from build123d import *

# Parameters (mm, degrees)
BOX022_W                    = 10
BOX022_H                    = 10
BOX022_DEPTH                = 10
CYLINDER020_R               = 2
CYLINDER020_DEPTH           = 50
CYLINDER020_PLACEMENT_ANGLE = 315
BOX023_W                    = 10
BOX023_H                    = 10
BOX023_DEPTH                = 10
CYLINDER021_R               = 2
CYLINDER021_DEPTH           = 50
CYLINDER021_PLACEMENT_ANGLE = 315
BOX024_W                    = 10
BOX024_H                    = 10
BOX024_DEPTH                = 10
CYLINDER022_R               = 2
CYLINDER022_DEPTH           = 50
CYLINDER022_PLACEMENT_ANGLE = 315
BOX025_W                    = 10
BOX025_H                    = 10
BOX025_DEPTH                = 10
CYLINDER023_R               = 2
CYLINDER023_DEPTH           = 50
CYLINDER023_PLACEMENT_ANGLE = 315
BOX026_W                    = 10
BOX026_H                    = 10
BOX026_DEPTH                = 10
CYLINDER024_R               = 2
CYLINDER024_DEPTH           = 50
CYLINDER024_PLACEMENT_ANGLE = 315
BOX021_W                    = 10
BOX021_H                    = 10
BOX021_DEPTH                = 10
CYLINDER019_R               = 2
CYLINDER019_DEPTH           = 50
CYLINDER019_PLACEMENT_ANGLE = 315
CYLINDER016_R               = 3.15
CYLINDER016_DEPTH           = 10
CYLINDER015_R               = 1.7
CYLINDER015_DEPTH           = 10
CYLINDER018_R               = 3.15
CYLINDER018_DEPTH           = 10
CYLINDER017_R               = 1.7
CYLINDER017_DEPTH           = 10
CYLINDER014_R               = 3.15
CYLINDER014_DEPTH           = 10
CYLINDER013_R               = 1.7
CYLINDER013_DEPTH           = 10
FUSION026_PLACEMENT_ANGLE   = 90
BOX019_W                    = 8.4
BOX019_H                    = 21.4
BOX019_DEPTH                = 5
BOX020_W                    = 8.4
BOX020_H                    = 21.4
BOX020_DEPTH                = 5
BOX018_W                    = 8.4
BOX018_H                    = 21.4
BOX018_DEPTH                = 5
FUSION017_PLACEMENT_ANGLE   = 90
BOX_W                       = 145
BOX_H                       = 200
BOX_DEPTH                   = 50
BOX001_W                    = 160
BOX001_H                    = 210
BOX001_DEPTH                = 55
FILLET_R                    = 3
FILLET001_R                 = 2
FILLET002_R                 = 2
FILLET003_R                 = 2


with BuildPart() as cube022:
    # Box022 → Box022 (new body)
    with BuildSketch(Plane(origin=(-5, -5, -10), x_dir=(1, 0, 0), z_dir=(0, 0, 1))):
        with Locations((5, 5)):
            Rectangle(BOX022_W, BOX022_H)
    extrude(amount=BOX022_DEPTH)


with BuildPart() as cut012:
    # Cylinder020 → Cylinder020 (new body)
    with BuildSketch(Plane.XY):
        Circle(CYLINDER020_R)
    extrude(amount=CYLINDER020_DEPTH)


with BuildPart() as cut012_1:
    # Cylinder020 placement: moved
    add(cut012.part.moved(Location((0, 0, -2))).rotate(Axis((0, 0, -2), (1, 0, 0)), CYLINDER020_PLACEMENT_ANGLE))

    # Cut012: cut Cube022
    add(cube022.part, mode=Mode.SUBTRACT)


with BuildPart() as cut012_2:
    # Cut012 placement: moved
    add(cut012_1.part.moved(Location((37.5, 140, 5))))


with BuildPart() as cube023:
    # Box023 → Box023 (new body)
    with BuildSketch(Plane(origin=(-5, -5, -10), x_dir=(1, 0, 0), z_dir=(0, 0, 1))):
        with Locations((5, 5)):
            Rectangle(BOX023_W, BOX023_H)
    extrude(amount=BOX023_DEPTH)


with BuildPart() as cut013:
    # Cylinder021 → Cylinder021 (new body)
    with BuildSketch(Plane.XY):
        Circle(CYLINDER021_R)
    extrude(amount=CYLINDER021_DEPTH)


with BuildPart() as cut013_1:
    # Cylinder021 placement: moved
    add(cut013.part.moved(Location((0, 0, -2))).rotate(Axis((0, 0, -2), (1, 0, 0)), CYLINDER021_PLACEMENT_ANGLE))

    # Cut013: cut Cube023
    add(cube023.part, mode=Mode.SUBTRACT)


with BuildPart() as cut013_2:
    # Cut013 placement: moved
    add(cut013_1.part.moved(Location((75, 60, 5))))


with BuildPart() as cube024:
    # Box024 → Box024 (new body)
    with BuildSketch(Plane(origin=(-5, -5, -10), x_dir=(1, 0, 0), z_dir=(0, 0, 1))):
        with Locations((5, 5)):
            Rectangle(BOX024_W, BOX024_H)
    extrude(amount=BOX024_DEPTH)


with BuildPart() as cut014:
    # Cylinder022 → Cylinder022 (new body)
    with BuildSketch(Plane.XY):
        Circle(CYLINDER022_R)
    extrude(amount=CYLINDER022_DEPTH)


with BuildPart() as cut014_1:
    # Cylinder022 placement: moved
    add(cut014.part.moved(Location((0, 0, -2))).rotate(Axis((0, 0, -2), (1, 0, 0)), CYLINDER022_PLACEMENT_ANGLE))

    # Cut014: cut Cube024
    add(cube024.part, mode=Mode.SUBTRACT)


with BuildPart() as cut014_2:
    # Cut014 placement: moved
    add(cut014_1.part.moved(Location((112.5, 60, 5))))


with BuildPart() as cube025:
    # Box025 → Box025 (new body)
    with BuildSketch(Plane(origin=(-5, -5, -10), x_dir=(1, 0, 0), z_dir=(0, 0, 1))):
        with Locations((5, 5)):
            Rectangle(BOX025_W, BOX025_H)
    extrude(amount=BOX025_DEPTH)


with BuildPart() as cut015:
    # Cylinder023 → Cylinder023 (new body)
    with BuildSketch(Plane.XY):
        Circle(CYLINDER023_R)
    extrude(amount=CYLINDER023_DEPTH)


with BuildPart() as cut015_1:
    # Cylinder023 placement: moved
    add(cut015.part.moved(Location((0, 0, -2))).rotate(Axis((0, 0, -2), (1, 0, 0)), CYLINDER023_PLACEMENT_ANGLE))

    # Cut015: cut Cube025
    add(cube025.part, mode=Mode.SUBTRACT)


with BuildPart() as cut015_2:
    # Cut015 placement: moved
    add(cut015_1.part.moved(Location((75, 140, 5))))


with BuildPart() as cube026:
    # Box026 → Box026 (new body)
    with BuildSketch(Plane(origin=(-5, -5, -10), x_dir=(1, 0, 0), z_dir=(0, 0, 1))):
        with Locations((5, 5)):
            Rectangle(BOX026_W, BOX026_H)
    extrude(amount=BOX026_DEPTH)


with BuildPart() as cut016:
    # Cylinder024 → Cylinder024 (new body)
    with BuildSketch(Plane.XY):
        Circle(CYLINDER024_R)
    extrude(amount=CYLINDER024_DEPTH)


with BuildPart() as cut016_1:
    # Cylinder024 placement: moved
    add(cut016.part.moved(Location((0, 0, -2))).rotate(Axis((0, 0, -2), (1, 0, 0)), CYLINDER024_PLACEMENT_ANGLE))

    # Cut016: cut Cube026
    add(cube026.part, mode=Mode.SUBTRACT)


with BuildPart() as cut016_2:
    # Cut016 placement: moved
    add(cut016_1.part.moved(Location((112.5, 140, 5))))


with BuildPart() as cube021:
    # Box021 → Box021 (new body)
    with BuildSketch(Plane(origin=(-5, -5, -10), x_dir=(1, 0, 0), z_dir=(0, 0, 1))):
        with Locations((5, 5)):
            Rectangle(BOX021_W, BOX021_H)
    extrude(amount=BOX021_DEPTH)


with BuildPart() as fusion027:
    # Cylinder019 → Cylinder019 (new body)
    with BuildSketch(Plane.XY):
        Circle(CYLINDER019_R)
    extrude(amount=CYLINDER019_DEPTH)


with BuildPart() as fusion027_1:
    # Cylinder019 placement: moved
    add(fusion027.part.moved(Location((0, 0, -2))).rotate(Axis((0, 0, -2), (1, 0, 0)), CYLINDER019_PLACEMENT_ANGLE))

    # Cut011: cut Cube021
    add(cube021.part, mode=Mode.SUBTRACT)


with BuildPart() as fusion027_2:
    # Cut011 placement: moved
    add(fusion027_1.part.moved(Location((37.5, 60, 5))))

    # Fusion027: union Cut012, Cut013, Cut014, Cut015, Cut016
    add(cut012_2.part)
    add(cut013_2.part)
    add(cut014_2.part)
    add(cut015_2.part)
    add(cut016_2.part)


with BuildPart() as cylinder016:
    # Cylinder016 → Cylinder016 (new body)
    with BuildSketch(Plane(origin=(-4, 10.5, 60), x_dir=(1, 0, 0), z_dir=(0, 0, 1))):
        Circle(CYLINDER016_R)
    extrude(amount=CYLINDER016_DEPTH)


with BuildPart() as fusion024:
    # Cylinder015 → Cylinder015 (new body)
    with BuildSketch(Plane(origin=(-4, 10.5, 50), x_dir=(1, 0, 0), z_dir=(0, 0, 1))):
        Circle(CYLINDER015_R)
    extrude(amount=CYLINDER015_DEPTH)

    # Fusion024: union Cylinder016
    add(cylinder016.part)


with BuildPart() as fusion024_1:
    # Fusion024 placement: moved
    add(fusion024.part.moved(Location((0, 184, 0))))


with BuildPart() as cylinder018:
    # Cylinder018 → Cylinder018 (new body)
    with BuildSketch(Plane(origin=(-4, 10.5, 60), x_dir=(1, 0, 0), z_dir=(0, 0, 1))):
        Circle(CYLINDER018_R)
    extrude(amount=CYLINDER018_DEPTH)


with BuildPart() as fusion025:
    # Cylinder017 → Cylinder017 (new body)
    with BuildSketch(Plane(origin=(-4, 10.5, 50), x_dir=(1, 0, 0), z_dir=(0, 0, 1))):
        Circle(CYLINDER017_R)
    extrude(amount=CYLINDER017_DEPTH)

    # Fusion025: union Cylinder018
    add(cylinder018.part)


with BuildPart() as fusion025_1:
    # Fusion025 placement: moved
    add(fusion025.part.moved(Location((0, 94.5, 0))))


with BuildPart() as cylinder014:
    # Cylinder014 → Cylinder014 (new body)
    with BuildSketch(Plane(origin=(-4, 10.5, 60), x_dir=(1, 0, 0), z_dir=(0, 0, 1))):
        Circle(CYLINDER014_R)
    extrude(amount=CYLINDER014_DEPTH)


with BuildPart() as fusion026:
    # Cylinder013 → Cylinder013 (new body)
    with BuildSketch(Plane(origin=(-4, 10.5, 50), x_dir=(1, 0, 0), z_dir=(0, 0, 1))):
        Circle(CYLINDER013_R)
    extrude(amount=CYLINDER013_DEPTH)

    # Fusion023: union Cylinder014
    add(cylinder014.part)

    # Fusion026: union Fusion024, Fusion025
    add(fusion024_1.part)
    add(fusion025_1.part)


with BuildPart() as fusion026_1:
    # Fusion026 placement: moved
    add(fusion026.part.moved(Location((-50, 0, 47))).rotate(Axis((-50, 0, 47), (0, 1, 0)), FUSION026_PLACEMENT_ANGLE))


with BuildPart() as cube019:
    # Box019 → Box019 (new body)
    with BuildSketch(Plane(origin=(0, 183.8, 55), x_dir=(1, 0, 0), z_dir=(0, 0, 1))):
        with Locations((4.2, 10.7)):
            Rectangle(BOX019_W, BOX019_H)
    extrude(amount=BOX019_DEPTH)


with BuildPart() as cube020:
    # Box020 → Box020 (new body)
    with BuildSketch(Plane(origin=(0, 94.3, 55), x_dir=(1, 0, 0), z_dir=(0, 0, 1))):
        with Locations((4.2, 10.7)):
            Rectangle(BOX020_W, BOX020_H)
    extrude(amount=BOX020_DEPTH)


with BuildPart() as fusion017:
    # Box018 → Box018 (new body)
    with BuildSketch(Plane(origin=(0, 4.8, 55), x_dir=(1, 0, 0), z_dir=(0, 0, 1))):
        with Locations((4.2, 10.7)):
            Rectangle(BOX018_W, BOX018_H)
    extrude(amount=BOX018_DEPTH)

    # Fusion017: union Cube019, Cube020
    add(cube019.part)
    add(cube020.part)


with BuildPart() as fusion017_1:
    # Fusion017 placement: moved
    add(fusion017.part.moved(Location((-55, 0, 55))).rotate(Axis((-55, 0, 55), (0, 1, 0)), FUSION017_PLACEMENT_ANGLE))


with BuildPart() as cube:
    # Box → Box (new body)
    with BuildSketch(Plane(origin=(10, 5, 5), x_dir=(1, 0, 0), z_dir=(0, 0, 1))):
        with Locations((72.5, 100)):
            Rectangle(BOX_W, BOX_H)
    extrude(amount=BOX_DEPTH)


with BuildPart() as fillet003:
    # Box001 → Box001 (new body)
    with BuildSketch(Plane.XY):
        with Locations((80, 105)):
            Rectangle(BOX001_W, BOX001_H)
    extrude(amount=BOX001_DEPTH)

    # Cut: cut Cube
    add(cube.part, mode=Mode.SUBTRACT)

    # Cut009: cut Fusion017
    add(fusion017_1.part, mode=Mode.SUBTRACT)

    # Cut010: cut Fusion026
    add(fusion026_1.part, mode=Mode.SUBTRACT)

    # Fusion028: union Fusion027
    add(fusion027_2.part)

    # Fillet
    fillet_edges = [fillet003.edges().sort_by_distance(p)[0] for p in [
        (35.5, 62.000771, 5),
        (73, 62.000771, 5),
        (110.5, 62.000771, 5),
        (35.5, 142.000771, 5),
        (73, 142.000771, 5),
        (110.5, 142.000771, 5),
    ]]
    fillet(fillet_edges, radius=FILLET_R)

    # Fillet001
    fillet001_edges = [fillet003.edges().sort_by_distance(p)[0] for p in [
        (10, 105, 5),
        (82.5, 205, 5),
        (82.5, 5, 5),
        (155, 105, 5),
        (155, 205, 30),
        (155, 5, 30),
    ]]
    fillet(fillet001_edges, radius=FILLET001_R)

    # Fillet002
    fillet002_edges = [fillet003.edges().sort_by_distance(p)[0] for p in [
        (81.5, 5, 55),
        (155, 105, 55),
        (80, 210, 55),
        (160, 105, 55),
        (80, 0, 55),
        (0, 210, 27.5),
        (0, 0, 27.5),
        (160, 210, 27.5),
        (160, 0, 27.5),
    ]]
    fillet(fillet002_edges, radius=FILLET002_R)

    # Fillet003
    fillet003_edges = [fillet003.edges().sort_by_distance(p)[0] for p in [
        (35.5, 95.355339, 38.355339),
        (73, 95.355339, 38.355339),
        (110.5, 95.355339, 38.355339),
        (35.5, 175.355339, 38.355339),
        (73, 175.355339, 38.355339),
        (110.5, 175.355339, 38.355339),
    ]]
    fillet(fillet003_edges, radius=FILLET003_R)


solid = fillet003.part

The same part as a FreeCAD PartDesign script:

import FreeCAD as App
import Part
import Sketcher
Q = App.Units.Quantity


def edges_at(feature, points):
    """Names of the edges that pass closest to the given points."""
    edges = feature.Shape.Edges
    near = lambda p: min(range(len(edges)), key=lambda i: edges[i].distToShape(Part.Vertex(*p))[0])
    return sorted({f"Edge{near(p) + 1}" for p in points})


def add_polygon(sketch, points):
    """Adds a closed chain of lines whose ends are joined by coincident constraints."""
    first, n = sketch.GeometryCount, len(points)
    for a, b in zip(points, points[1:] + points[:1]):
        sketch.addGeometry(Part.LineSegment(App.Vector(*a, 0), App.Vector(*b, 0)), False)
    for i in range(n):
        sketch.addConstraint(Sketcher.Constraint("Coincident", first + i, 2, first + (i + 1) % n, 1))

doc = App.newDocument("Part")
body = doc.addObject("PartDesign::Body", "Body")

# Sketch on XY plane
sketch1 = doc.addObject("Sketcher::SketchObject", "Sketch")
body.addObject(sketch1)
sketch1.AttachmentSupport = (doc.XY_Plane, [""])
sketch1.MapMode = "FlatFace"
sketch1.AttachmentOffset = App.Placement(App.Vector(0, 0, -10), App.Rotation())
add_polygon(sketch1, [(-5, 5), (-5, -5), (5, -5), (5, 5)])  # lines 0-3
sketch1.addConstraint([
    Sketcher.Constraint("Vertical", 0),
    Sketcher.Constraint("Horizontal", 1),
    Sketcher.Constraint("Vertical", 2),
    Sketcher.Constraint("Horizontal", 3),
    Sketcher.Constraint("Symmetric", 0, 2, 2, 2, -1, 1),
    Sketcher.Constraint("Equal", 3, 0),
    Sketcher.Constraint("DistanceX", 1, 1, 1, 2, Q("10 mm")),
])
pad1 = doc.addObject("PartDesign::Pad", "Pad")
body.addObject(pad1)
pad1.Profile = sketch1
pad1.Length = 10
body2 = doc.addObject("PartDesign::Body", "Body001")

# Sketch on XY plane
sketch2 = doc.addObject("Sketcher::SketchObject", "Sketch001")
body2.addObject(sketch2)
sketch2.AttachmentSupport = (doc.getObject("XY_Plane001"), [""])
sketch2.MapMode = "FlatFace"
sketch2.addGeometry(Part.Circle(App.Vector(0, 0, 0), App.Vector(0, 0, 1), 2), False)
sketch2.addConstraint([
    Sketcher.Constraint("Coincident", 0, 3, -1, 1),
    Sketcher.Constraint("Diameter", 0, Q("4 mm")),
])
pad2 = doc.addObject("PartDesign::Pad", "Pad001")
body2.addObject(pad2)
pad2.Profile = sketch2
pad2.Length = 50
body3 = doc.addObject("PartDesign::Body", "Body002")
doc.recompute()

body2.Placement = App.Placement(App.Vector(0, 0, -2), App.Rotation(App.Vector(1, 0, 0), 315))
boolean = doc.addObject("PartDesign::Boolean", "Boolean")
body3.addObject(boolean)
boolean.Type = "Fuse"
boolean.addObjects([body2])
doc.recompute()

boolean2 = doc.addObject("PartDesign::Boolean", "Boolean001")
body3.addObject(boolean2)
boolean2.Type = "Cut"
boolean2.addObjects([body])
body4 = doc.addObject("PartDesign::Body", "Body003")
doc.recompute()

body3.Placement = App.Placement(App.Vector(37.5, 140, 5), App.Rotation(App.Vector(0, 0, 1), 0))
boolean3 = doc.addObject("PartDesign::Boolean", "Boolean002")
body4.addObject(boolean3)
boolean3.Type = "Fuse"
boolean3.addObjects([body3])
body5 = doc.addObject("PartDesign::Body", "Body004")

# Sketch on XY plane
sketch3 = doc.addObject("Sketcher::SketchObject", "Sketch002")
body5.addObject(sketch3)
sketch3.AttachmentSupport = (doc.getObject("XY_Plane004"), [""])
sketch3.MapMode = "FlatFace"
sketch3.AttachmentOffset = App.Placement(App.Vector(0, 0, -10), App.Rotation())
add_polygon(sketch3, [(-5, 5), (-5, -5), (5, -5), (5, 5)])  # lines 0-3
sketch3.addConstraint([
    Sketcher.Constraint("Vertical", 0),
    Sketcher.Constraint("Horizontal", 1),
    Sketcher.Constraint("Vertical", 2),
    Sketcher.Constraint("Horizontal", 3),
    Sketcher.Constraint("Symmetric", 0, 2, 2, 2, -1, 1),
    Sketcher.Constraint("Equal", 3, 0),
    Sketcher.Constraint("DistanceX", 1, 1, 1, 2, Q("10 mm")),
])
pad3 = doc.addObject("PartDesign::Pad", "Pad002")
body5.addObject(pad3)
pad3.Profile = sketch3
pad3.Length = 10
body6 = doc.addObject("PartDesign::Body", "Body005")

# Sketch on XY plane
sketch4 = doc.addObject("Sketcher::SketchObject", "Sketch003")
body6.addObject(sketch4)
sketch4.AttachmentSupport = (doc.getObject("XY_Plane005"), [""])
sketch4.MapMode = "FlatFace"
sketch4.addGeometry(Part.Circle(App.Vector(0, 0, 0), App.Vector(0, 0, 1), 2), False)
sketch4.addConstraint([
    Sketcher.Constraint("Coincident", 0, 3, -1, 1),
    Sketcher.Constraint("Diameter", 0, Q("4 mm")),
])
pad4 = doc.addObject("PartDesign::Pad", "Pad003")
body6.addObject(pad4)
pad4.Profile = sketch4
pad4.Length = 50
body7 = doc.addObject("PartDesign::Body", "Body006")
doc.recompute()

body6.Placement = App.Placement(App.Vector(0, 0, -2), App.Rotation(App.Vector(1, 0, 0), 315))
boolean4 = doc.addObject("PartDesign::Boolean", "Boolean003")
body7.addObject(boolean4)
boolean4.Type = "Fuse"
boolean4.addObjects([body6])
doc.recompute()

boolean5 = doc.addObject("PartDesign::Boolean", "Boolean004")
body7.addObject(boolean5)
boolean5.Type = "Cut"
boolean5.addObjects([body5])
body8 = doc.addObject("PartDesign::Body", "Body007")
doc.recompute()

body7.Placement = App.Placement(App.Vector(75, 60, 5), App.Rotation(App.Vector(0, 0, 1), 0))
boolean6 = doc.addObject("PartDesign::Boolean", "Boolean005")
body8.addObject(boolean6)
boolean6.Type = "Fuse"
boolean6.addObjects([body7])
body9 = doc.addObject("PartDesign::Body", "Body008")

# Sketch on XY plane
sketch5 = doc.addObject("Sketcher::SketchObject", "Sketch004")
body9.addObject(sketch5)
sketch5.AttachmentSupport = (doc.getObject("XY_Plane008"), [""])
sketch5.MapMode = "FlatFace"
sketch5.AttachmentOffset = App.Placement(App.Vector(0, 0, -10), App.Rotation())
add_polygon(sketch5, [(-5, 5), (-5, -5), (5, -5), (5, 5)])  # lines 0-3
sketch5.addConstraint([
    Sketcher.Constraint("Vertical", 0),
    Sketcher.Constraint("Horizontal", 1),
    Sketcher.Constraint("Vertical", 2),
    Sketcher.Constraint("Horizontal", 3),
    Sketcher.Constraint("Symmetric", 0, 2, 2, 2, -1, 1),
    Sketcher.Constraint("Equal", 3, 0),
    Sketcher.Constraint("DistanceX", 1, 1, 1, 2, Q("10 mm")),
])
pad5 = doc.addObject("PartDesign::Pad", "Pad004")
body9.addObject(pad5)
pad5.Profile = sketch5
pad5.Length = 10
body10 = doc.addObject("PartDesign::Body", "Body009")

# Sketch on XY plane
sketch6 = doc.addObject("Sketcher::SketchObject", "Sketch005")
body10.addObject(sketch6)
sketch6.AttachmentSupport = (doc.getObject("XY_Plane009"), [""])
sketch6.MapMode = "FlatFace"
sketch6.addGeometry(Part.Circle(App.Vector(0, 0, 0), App.Vector(0, 0, 1), 2), False)
sketch6.addConstraint([
    Sketcher.Constraint("Coincident", 0, 3, -1, 1),
    Sketcher.Constraint("Diameter", 0, Q("4 mm")),
])
pad6 = doc.addObject("PartDesign::Pad", "Pad005")
body10.addObject(pad6)
pad6.Profile = sketch6
pad6.Length = 50
body11 = doc.addObject("PartDesign::Body", "Body010")
doc.recompute()

body10.Placement = App.Placement(App.Vector(0, 0, -2), App.Rotation(App.Vector(1, 0, 0), 315))
boolean7 = doc.addObject("PartDesign::Boolean", "Boolean006")
body11.addObject(boolean7)
boolean7.Type = "Fuse"
boolean7.addObjects([body10])
doc.recompute()

boolean8 = doc.addObject("PartDesign::Boolean", "Boolean007")
body11.addObject(boolean8)
boolean8.Type = "Cut"
boolean8.addObjects([body9])
body12 = doc.addObject("PartDesign::Body", "Body011")
doc.recompute()

body11.Placement = App.Placement(App.Vector(112.5, 60, 5), App.Rotation(App.Vector(0, 0, 1), 0))
boolean9 = doc.addObject("PartDesign::Boolean", "Boolean008")
body12.addObject(boolean9)
boolean9.Type = "Fuse"
boolean9.addObjects([body11])
body13 = doc.addObject("PartDesign::Body", "Body012")

# Sketch on XY plane
sketch7 = doc.addObject("Sketcher::SketchObject", "Sketch006")
body13.addObject(sketch7)
sketch7.AttachmentSupport = (doc.getObject("XY_Plane012"), [""])
sketch7.MapMode = "FlatFace"
sketch7.AttachmentOffset = App.Placement(App.Vector(0, 0, -10), App.Rotation())
add_polygon(sketch7, [(-5, 5), (-5, -5), (5, -5), (5, 5)])  # lines 0-3
sketch7.addConstraint([
    Sketcher.Constraint("Vertical", 0),
    Sketcher.Constraint("Horizontal", 1),
    Sketcher.Constraint("Vertical", 2),
    Sketcher.Constraint("Horizontal", 3),
    Sketcher.Constraint("Symmetric", 0, 2, 2, 2, -1, 1),
    Sketcher.Constraint("Equal", 3, 0),
    Sketcher.Constraint("DistanceX", 1, 1, 1, 2, Q("10 mm")),
])
pad7 = doc.addObject("PartDesign::Pad", "Pad006")
body13.addObject(pad7)
pad7.Profile = sketch7
pad7.Length = 10
body14 = doc.addObject("PartDesign::Body", "Body013")

# Sketch on XY plane
sketch8 = doc.addObject("Sketcher::SketchObject", "Sketch007")
body14.addObject(sketch8)
sketch8.AttachmentSupport = (doc.getObject("XY_Plane013"), [""])
sketch8.MapMode = "FlatFace"
sketch8.addGeometry(Part.Circle(App.Vector(0, 0, 0), App.Vector(0, 0, 1), 2), False)
sketch8.addConstraint([
    Sketcher.Constraint("Coincident", 0, 3, -1, 1),
    Sketcher.Constraint("Diameter", 0, Q("4 mm")),
])
pad8 = doc.addObject("PartDesign::Pad", "Pad007")
body14.addObject(pad8)
pad8.Profile = sketch8
pad8.Length = 50
body15 = doc.addObject("PartDesign::Body", "Body014")
doc.recompute()

body14.Placement = App.Placement(App.Vector(0, 0, -2), App.Rotation(App.Vector(1, 0, 0), 315))
boolean10 = doc.addObject("PartDesign::Boolean", "Boolean009")
body15.addObject(boolean10)
boolean10.Type = "Fuse"
boolean10.addObjects([body14])
doc.recompute()

boolean11 = doc.addObject("PartDesign::Boolean", "Boolean010")
body15.addObject(boolean11)
boolean11.Type = "Cut"
boolean11.addObjects([body13])
body16 = doc.addObject("PartDesign::Body", "Body015")
doc.recompute()

body15.Placement = App.Placement(App.Vector(75, 140, 5), App.Rotation(App.Vector(0, 0, 1), 0))
boolean12 = doc.addObject("PartDesign::Boolean", "Boolean011")
body16.addObject(boolean12)
boolean12.Type = "Fuse"
boolean12.addObjects([body15])
body17 = doc.addObject("PartDesign::Body", "Body016")

# Sketch on XY plane
sketch9 = doc.addObject("Sketcher::SketchObject", "Sketch008")
body17.addObject(sketch9)
sketch9.AttachmentSupport = (doc.getObject("XY_Plane016"), [""])
sketch9.MapMode = "FlatFace"
sketch9.AttachmentOffset = App.Placement(App.Vector(0, 0, -10), App.Rotation())
add_polygon(sketch9, [(-5, 5), (-5, -5), (5, -5), (5, 5)])  # lines 0-3
sketch9.addConstraint([
    Sketcher.Constraint("Vertical", 0),
    Sketcher.Constraint("Horizontal", 1),
    Sketcher.Constraint("Vertical", 2),
    Sketcher.Constraint("Horizontal", 3),
    Sketcher.Constraint("Symmetric", 0, 2, 2, 2, -1, 1),
    Sketcher.Constraint("Equal", 3, 0),
    Sketcher.Constraint("DistanceX", 1, 1, 1, 2, Q("10 mm")),
])
pad9 = doc.addObject("PartDesign::Pad", "Pad008")
body17.addObject(pad9)
pad9.Profile = sketch9
pad9.Length = 10
body18 = doc.addObject("PartDesign::Body", "Body017")

# Sketch on XY plane
sketch10 = doc.addObject("Sketcher::SketchObject", "Sketch009")
body18.addObject(sketch10)
sketch10.AttachmentSupport = (doc.getObject("XY_Plane017"), [""])
sketch10.MapMode = "FlatFace"
sketch10.addGeometry(Part.Circle(App.Vector(0, 0, 0), App.Vector(0, 0, 1), 2), False)
sketch10.addConstraint([
    Sketcher.Constraint("Coincident", 0, 3, -1, 1),
    Sketcher.Constraint("Diameter", 0, Q("4 mm")),
])
pad10 = doc.addObject("PartDesign::Pad", "Pad009")
body18.addObject(pad10)
pad10.Profile = sketch10
pad10.Length = 50
body19 = doc.addObject("PartDesign::Body", "Body018")
doc.recompute()

body18.Placement = App.Placement(App.Vector(0, 0, -2), App.Rotation(App.Vector(1, 0, 0), 315))
boolean13 = doc.addObject("PartDesign::Boolean", "Boolean012")
body19.addObject(boolean13)
boolean13.Type = "Fuse"
boolean13.addObjects([body18])
doc.recompute()

boolean14 = doc.addObject("PartDesign::Boolean", "Boolean013")
body19.addObject(boolean14)
boolean14.Type = "Cut"
boolean14.addObjects([body17])
body20 = doc.addObject("PartDesign::Body", "Body019")
doc.recompute()

body19.Placement = App.Placement(App.Vector(112.5, 140, 5), App.Rotation(App.Vector(0, 0, 1), 0))
boolean15 = doc.addObject("PartDesign::Boolean", "Boolean014")
body20.addObject(boolean15)
boolean15.Type = "Fuse"
boolean15.addObjects([body19])
body21 = doc.addObject("PartDesign::Body", "Body020")

# Sketch on XY plane
sketch11 = doc.addObject("Sketcher::SketchObject", "Sketch010")
body21.addObject(sketch11)
sketch11.AttachmentSupport = (doc.getObject("XY_Plane020"), [""])
sketch11.MapMode = "FlatFace"
sketch11.AttachmentOffset = App.Placement(App.Vector(0, 0, -10), App.Rotation())
add_polygon(sketch11, [(-5, 5), (-5, -5), (5, -5), (5, 5)])  # lines 0-3
sketch11.addConstraint([
    Sketcher.Constraint("Vertical", 0),
    Sketcher.Constraint("Horizontal", 1),
    Sketcher.Constraint("Vertical", 2),
    Sketcher.Constraint("Horizontal", 3),
    Sketcher.Constraint("Symmetric", 0, 2, 2, 2, -1, 1),
    Sketcher.Constraint("Equal", 3, 0),
    Sketcher.Constraint("DistanceX", 1, 1, 1, 2, Q("10 mm")),
])
pad11 = doc.addObject("PartDesign::Pad", "Pad010")
body21.addObject(pad11)
pad11.Profile = sketch11
pad11.Length = 10
body22 = doc.addObject("PartDesign::Body", "Body021")

# Sketch on XY plane
sketch12 = doc.addObject("Sketcher::SketchObject", "Sketch011")
body22.addObject(sketch12)
sketch12.AttachmentSupport = (doc.getObject("XY_Plane021"), [""])
sketch12.MapMode = "FlatFace"
sketch12.addGeometry(Part.Circle(App.Vector(0, 0, 0), App.Vector(0, 0, 1), 2), False)
sketch12.addConstraint([
    Sketcher.Constraint("Coincident", 0, 3, -1, 1),
    Sketcher.Constraint("Diameter", 0, Q("4 mm")),
])
pad12 = doc.addObject("PartDesign::Pad", "Pad011")
body22.addObject(pad12)
pad12.Profile = sketch12
pad12.Length = 50
body23 = doc.addObject("PartDesign::Body", "Body022")
doc.recompute()

body22.Placement = App.Placement(App.Vector(0, 0, -2), App.Rotation(App.Vector(1, 0, 0), 315))
boolean16 = doc.addObject("PartDesign::Boolean", "Boolean015")
body23.addObject(boolean16)
boolean16.Type = "Fuse"
boolean16.addObjects([body22])
doc.recompute()

boolean17 = doc.addObject("PartDesign::Boolean", "Boolean016")
body23.addObject(boolean17)
boolean17.Type = "Cut"
boolean17.addObjects([body21])
body24 = doc.addObject("PartDesign::Body", "Body023")
body24.AllowCompound = True
doc.recompute()

body23.Placement = App.Placement(App.Vector(37.5, 60, 5), App.Rotation(App.Vector(0, 0, 1), 0))
boolean18 = doc.addObject("PartDesign::Boolean", "Boolean017")
body24.addObject(boolean18)
boolean18.Type = "Fuse"
boolean18.addObjects([body23])
doc.recompute()

boolean19 = doc.addObject("PartDesign::Boolean", "Boolean018")
body24.addObject(boolean19)
boolean19.Type = "Fuse"
boolean19.addObjects([body4])
doc.recompute()

boolean20 = doc.addObject("PartDesign::Boolean", "Boolean019")
body24.addObject(boolean20)
boolean20.Type = "Fuse"
boolean20.addObjects([body8])
doc.recompute()

boolean21 = doc.addObject("PartDesign::Boolean", "Boolean020")
body24.addObject(boolean21)
boolean21.Type = "Fuse"
boolean21.addObjects([body12])
doc.recompute()

boolean22 = doc.addObject("PartDesign::Boolean", "Boolean021")
body24.addObject(boolean22)
boolean22.Type = "Fuse"
boolean22.addObjects([body16])
doc.recompute()

boolean23 = doc.addObject("PartDesign::Boolean", "Boolean022")
body24.addObject(boolean23)
boolean23.Type = "Fuse"
boolean23.addObjects([body20])
body25 = doc.addObject("PartDesign::Body", "Body024")

# Sketch on XY plane
sketch13 = doc.addObject("Sketcher::SketchObject", "Sketch012")
body25.addObject(sketch13)
sketch13.AttachmentSupport = (doc.getObject("XY_Plane024"), [""])
sketch13.MapMode = "FlatFace"
sketch13.AttachmentOffset = App.Placement(App.Vector(0, 0, 60), App.Rotation())
sketch13.addGeometry(Part.Circle(App.Vector(-4, 10.5, 0), App.Vector(0, 0, 1), 3.1), False)
sketch13.addConstraint([
    Sketcher.Constraint("Diameter", 0, Q("6.3 mm")),
    Sketcher.Constraint("DistanceX", 0, 3, -1, 1, Q("4 mm")),
    Sketcher.Constraint("DistanceY", -1, 1, 0, 3, Q("10.5 mm")),
])
pad13 = doc.addObject("PartDesign::Pad", "Pad012")
body25.addObject(pad13)
pad13.Profile = sketch13
pad13.Length = 10
body26 = doc.addObject("PartDesign::Body", "Body025")

# Sketch on XY plane
sketch14 = doc.addObject("Sketcher::SketchObject", "Sketch013")
body26.addObject(sketch14)
sketch14.AttachmentSupport = (doc.getObject("XY_Plane025"), [""])
sketch14.MapMode = "FlatFace"
sketch14.AttachmentOffset = App.Placement(App.Vector(0, 0, 50), App.Rotation())
sketch14.addGeometry(Part.Circle(App.Vector(-4, 10.5, 0), App.Vector(0, 0, 1), 1.7), False)
sketch14.addConstraint([
    Sketcher.Constraint("Diameter", 0, Q("3.4 mm")),
    Sketcher.Constraint("DistanceX", 0, 3, -1, 1, Q("4 mm")),
    Sketcher.Constraint("DistanceY", -1, 1, 0, 3, Q("10.5 mm")),
])
pad14 = doc.addObject("PartDesign::Pad", "Pad013")
body26.addObject(pad14)
pad14.Profile = sketch14
pad14.Length = 10
doc.recompute()

boolean24 = doc.addObject("PartDesign::Boolean", "Boolean023")
body26.addObject(boolean24)
boolean24.Type = "Fuse"
boolean24.addObjects([body25])
body27 = doc.addObject("PartDesign::Body", "Body026")
doc.recompute()

body26.Placement = App.Placement(App.Vector(0, 184, 0), App.Rotation(App.Vector(0, 0, 1), 0))
boolean25 = doc.addObject("PartDesign::Boolean", "Boolean024")
body27.addObject(boolean25)
boolean25.Type = "Fuse"
boolean25.addObjects([body26])
body28 = doc.addObject("PartDesign::Body", "Body027")

# Sketch on XY plane
sketch15 = doc.addObject("Sketcher::SketchObject", "Sketch014")
body28.addObject(sketch15)
sketch15.AttachmentSupport = (doc.getObject("XY_Plane027"), [""])
sketch15.MapMode = "FlatFace"
sketch15.AttachmentOffset = App.Placement(App.Vector(0, 0, 60), App.Rotation())
sketch15.addGeometry(Part.Circle(App.Vector(-4, 10.5, 0), App.Vector(0, 0, 1), 3.1), False)
sketch15.addConstraint([
    Sketcher.Constraint("Diameter", 0, Q("6.3 mm")),
    Sketcher.Constraint("DistanceX", 0, 3, -1, 1, Q("4 mm")),
    Sketcher.Constraint("DistanceY", -1, 1, 0, 3, Q("10.5 mm")),
])
pad15 = doc.addObject("PartDesign::Pad", "Pad014")
body28.addObject(pad15)
pad15.Profile = sketch15
pad15.Length = 10
body29 = doc.addObject("PartDesign::Body", "Body028")

# Sketch on XY plane
sketch16 = doc.addObject("Sketcher::SketchObject", "Sketch015")
body29.addObject(sketch16)
sketch16.AttachmentSupport = (doc.getObject("XY_Plane028"), [""])
sketch16.MapMode = "FlatFace"
sketch16.AttachmentOffset = App.Placement(App.Vector(0, 0, 50), App.Rotation())
sketch16.addGeometry(Part.Circle(App.Vector(-4, 10.5, 0), App.Vector(0, 0, 1), 1.7), False)
sketch16.addConstraint([
    Sketcher.Constraint("Diameter", 0, Q("3.4 mm")),
    Sketcher.Constraint("DistanceX", 0, 3, -1, 1, Q("4 mm")),
    Sketcher.Constraint("DistanceY", -1, 1, 0, 3, Q("10.5 mm")),
])
pad16 = doc.addObject("PartDesign::Pad", "Pad015")
body29.addObject(pad16)
pad16.Profile = sketch16
pad16.Length = 10
doc.recompute()

boolean26 = doc.addObject("PartDesign::Boolean", "Boolean025")
body29.addObject(boolean26)
boolean26.Type = "Fuse"
boolean26.addObjects([body28])
body30 = doc.addObject("PartDesign::Body", "Body029")
doc.recompute()

body29.Placement = App.Placement(App.Vector(0, 94.5, 0), App.Rotation(App.Vector(0, 0, 1), 0))
boolean27 = doc.addObject("PartDesign::Boolean", "Boolean026")
body30.addObject(boolean27)
boolean27.Type = "Fuse"
boolean27.addObjects([body29])
body31 = doc.addObject("PartDesign::Body", "Body030")

# Sketch on XY plane
sketch17 = doc.addObject("Sketcher::SketchObject", "Sketch016")
body31.addObject(sketch17)
sketch17.AttachmentSupport = (doc.getObject("XY_Plane030"), [""])
sketch17.MapMode = "FlatFace"
sketch17.AttachmentOffset = App.Placement(App.Vector(0, 0, 60), App.Rotation())
sketch17.addGeometry(Part.Circle(App.Vector(-4, 10.5, 0), App.Vector(0, 0, 1), 3.1), False)
sketch17.addConstraint([
    Sketcher.Constraint("Diameter", 0, Q("6.3 mm")),
    Sketcher.Constraint("DistanceX", 0, 3, -1, 1, Q("4 mm")),
    Sketcher.Constraint("DistanceY", -1, 1, 0, 3, Q("10.5 mm")),
])
pad17 = doc.addObject("PartDesign::Pad", "Pad016")
body31.addObject(pad17)
pad17.Profile = sketch17
pad17.Length = 10
body32 = doc.addObject("PartDesign::Body", "Body031")
body32.AllowCompound = True

# Sketch on XY plane
sketch18 = doc.addObject("Sketcher::SketchObject", "Sketch017")
body32.addObject(sketch18)
sketch18.AttachmentSupport = (doc.getObject("XY_Plane031"), [""])
sketch18.MapMode = "FlatFace"
sketch18.AttachmentOffset = App.Placement(App.Vector(0, 0, 50), App.Rotation())
sketch18.addGeometry(Part.Circle(App.Vector(-4, 10.5, 0), App.Vector(0, 0, 1), 1.7), False)
sketch18.addConstraint([
    Sketcher.Constraint("Diameter", 0, Q("3.4 mm")),
    Sketcher.Constraint("DistanceX", 0, 3, -1, 1, Q("4 mm")),
    Sketcher.Constraint("DistanceY", -1, 1, 0, 3, Q("10.5 mm")),
])
pad18 = doc.addObject("PartDesign::Pad", "Pad017")
body32.addObject(pad18)
pad18.Profile = sketch18
pad18.Length = 10
doc.recompute()

boolean28 = doc.addObject("PartDesign::Boolean", "Boolean027")
body32.addObject(boolean28)
boolean28.Type = "Fuse"
boolean28.addObjects([body31])
doc.recompute()

boolean29 = doc.addObject("PartDesign::Boolean", "Boolean028")
body32.addObject(boolean29)
boolean29.Type = "Fuse"
boolean29.addObjects([body27])
doc.recompute()

boolean30 = doc.addObject("PartDesign::Boolean", "Boolean029")
body32.addObject(boolean30)
boolean30.Type = "Fuse"
boolean30.addObjects([body30])
body33 = doc.addObject("PartDesign::Body", "Body032")
body33.AllowCompound = True
doc.recompute()

body32.Placement = App.Placement(App.Vector(-50, 0, 47), App.Rotation(App.Vector(0, 1, 0), 90))
boolean31 = doc.addObject("PartDesign::Boolean", "Boolean030")
body33.addObject(boolean31)
boolean31.Type = "Fuse"
boolean31.addObjects([body32])
body34 = doc.addObject("PartDesign::Body", "Body033")

# Sketch on XY plane
sketch19 = doc.addObject("Sketcher::SketchObject", "Sketch018")
body34.addObject(sketch19)
sketch19.AttachmentSupport = (doc.getObject("XY_Plane033"), [""])
sketch19.MapMode = "FlatFace"
sketch19.AttachmentOffset = App.Placement(App.Vector(0, 0, 55), App.Rotation())
add_polygon(sketch19, [(0, 205), (0, 184), (8, 184), (8, 205)])  # lines 0-3
sketch19.addConstraint([
    Sketcher.Constraint("Vertical", 0),
    Sketcher.Constraint("Horizontal", 1),
    Sketcher.Constraint("Vertical", 2),
    Sketcher.Constraint("Horizontal", 3),
    Sketcher.Constraint("PointOnObject", 0, 2, -2),
    Sketcher.Constraint("DistanceX", 1, 1, 1, 2, Q("8.4 mm")),
    Sketcher.Constraint("DistanceY", 0, 2, 0, 1, Q("21.4 mm")),
    Sketcher.Constraint("DistanceY", -1, 1, 0, 2, Q("183.8 mm")),
])
pad19 = doc.addObject("PartDesign::Pad", "Pad018")
body34.addObject(pad19)
pad19.Profile = sketch19
pad19.Length = 5
body35 = doc.addObject("PartDesign::Body", "Body034")

# Sketch on XY plane
sketch20 = doc.addObject("Sketcher::SketchObject", "Sketch019")
body35.addObject(sketch20)
sketch20.AttachmentSupport = (doc.getObject("XY_Plane034"), [""])
sketch20.MapMode = "FlatFace"
sketch20.AttachmentOffset = App.Placement(App.Vector(0, 0, 55), App.Rotation())
add_polygon(sketch20, [(0, 116), (0, 94), (8, 94), (8, 116)])  # lines 0-3
sketch20.addConstraint([
    Sketcher.Constraint("Vertical", 0),
    Sketcher.Constraint("Horizontal", 1),
    Sketcher.Constraint("Vertical", 2),
    Sketcher.Constraint("Horizontal", 3),
    Sketcher.Constraint("PointOnObject", 0, 2, -2),
    Sketcher.Constraint("DistanceX", 1, 1, 1, 2, Q("8.4 mm")),
    Sketcher.Constraint("DistanceY", 0, 2, 0, 1, Q("21.4 mm")),
    Sketcher.Constraint("DistanceY", -1, 1, 0, 2, Q("94.3 mm")),
])
pad20 = doc.addObject("PartDesign::Pad", "Pad019")
body35.addObject(pad20)
pad20.Profile = sketch20
pad20.Length = 5
body36 = doc.addObject("PartDesign::Body", "Body035")
body36.AllowCompound = True

# Sketch on XY plane
sketch21 = doc.addObject("Sketcher::SketchObject", "Sketch020")
body36.addObject(sketch21)
sketch21.AttachmentSupport = (doc.getObject("XY_Plane035"), [""])
sketch21.MapMode = "FlatFace"
sketch21.AttachmentOffset = App.Placement(App.Vector(0, 0, 55), App.Rotation())
add_polygon(sketch21, [(0, 26), (0, 5), (8, 5), (8, 26)])  # lines 0-3
sketch21.addConstraint([
    Sketcher.Constraint("Vertical", 0),
    Sketcher.Constraint("Horizontal", 1),
    Sketcher.Constraint("Vertical", 2),
    Sketcher.Constraint("Horizontal", 3),
    Sketcher.Constraint("PointOnObject", 0, 2, -2),
    Sketcher.Constraint("DistanceX", 1, 1, 1, 2, Q("8.4 mm")),
    Sketcher.Constraint("DistanceY", 0, 2, 0, 1, Q("21.4 mm")),
    Sketcher.Constraint("DistanceY", -1, 1, 0, 2, Q("4.8 mm")),
])
pad21 = doc.addObject("PartDesign::Pad", "Pad020")
body36.addObject(pad21)
pad21.Profile = sketch21
pad21.Length = 5
doc.recompute()

boolean32 = doc.addObject("PartDesign::Boolean", "Boolean031")
body36.addObject(boolean32)
boolean32.Type = "Fuse"
boolean32.addObjects([body34])
doc.recompute()

boolean33 = doc.addObject("PartDesign::Boolean", "Boolean032")
body36.addObject(boolean33)
boolean33.Type = "Fuse"
boolean33.addObjects([body35])
body37 = doc.addObject("PartDesign::Body", "Body036")
body37.AllowCompound = True
doc.recompute()

body36.Placement = App.Placement(App.Vector(-55, 0, 55), App.Rotation(App.Vector(0, 1, 0), 90))
boolean34 = doc.addObject("PartDesign::Boolean", "Boolean033")
body37.addObject(boolean34)
boolean34.Type = "Fuse"
boolean34.addObjects([body36])
body38 = doc.addObject("PartDesign::Body", "Body037")

# Sketch on XY plane
sketch22 = doc.addObject("Sketcher::SketchObject", "Sketch021")
body38.addObject(sketch22)
sketch22.AttachmentSupport = (doc.getObject("XY_Plane037"), [""])
sketch22.MapMode = "FlatFace"
sketch22.AttachmentOffset = App.Placement(App.Vector(0, 0, 5), App.Rotation())
add_polygon(sketch22, [(10, 205), (10, 5), (155, 5), (155, 205)])  # lines 0-3
sketch22.addConstraint([
    Sketcher.Constraint("Vertical", 0),
    Sketcher.Constraint("Horizontal", 1),
    Sketcher.Constraint("Vertical", 2),
    Sketcher.Constraint("Horizontal", 3),
    Sketcher.Constraint("DistanceX", 1, 1, 1, 2, Q("145 mm")),
    Sketcher.Constraint("DistanceY", 0, 2, 0, 1, Q("200 mm")),
    Sketcher.Constraint("DistanceX", -1, 1, 0, 2, Q("10 mm")),
    Sketcher.Constraint("DistanceY", -1, 1, 0, 2, Q("5 mm")),
])
pad22 = doc.addObject("PartDesign::Pad", "Pad021")
body38.addObject(pad22)
pad22.Profile = sketch22
pad22.Length = 50
body39 = doc.addObject("PartDesign::Body", "Body038")

# Sketch on XY plane
sketch23 = doc.addObject("Sketcher::SketchObject", "Sketch022")
body39.addObject(sketch23)
sketch23.AttachmentSupport = (doc.getObject("XY_Plane038"), [""])
sketch23.MapMode = "FlatFace"
add_polygon(sketch23, [(0, 210), (0, 0), (160, 0), (160, 210)])  # lines 0-3
sketch23.addConstraint([
    Sketcher.Constraint("Vertical", 0),
    Sketcher.Constraint("Horizontal", 1),
    Sketcher.Constraint("Vertical", 2),
    Sketcher.Constraint("Horizontal", 3),
    Sketcher.Constraint("Coincident", 0, 2, -1, 1),
    Sketcher.Constraint("DistanceX", 1, 1, 1, 2, Q("160 mm")),
    Sketcher.Constraint("DistanceY", 0, 2, 0, 1, Q("210 mm")),
])
pad23 = doc.addObject("PartDesign::Pad", "Pad022")
body39.addObject(pad23)
pad23.Profile = sketch23
pad23.Length = 55
doc.recompute()

boolean35 = doc.addObject("PartDesign::Boolean", "Boolean034")
body39.addObject(boolean35)
boolean35.Type = "Cut"
boolean35.addObjects([body38])
doc.recompute()

boolean36 = doc.addObject("PartDesign::Boolean", "Boolean035")
body39.addObject(boolean36)
boolean36.Type = "Cut"
boolean36.addObjects([body37])
doc.recompute()

boolean37 = doc.addObject("PartDesign::Boolean", "Boolean036")
body39.addObject(boolean37)
boolean37.Type = "Cut"
boolean37.addObjects([body33])
doc.recompute()

boolean38 = doc.addObject("PartDesign::Boolean", "Boolean037")
body39.addObject(boolean38)
boolean38.Type = "Fuse"
boolean38.addObjects([body24])
doc.recompute()

fillet = doc.addObject("PartDesign::Fillet", "Fillet")
body39.addObject(fillet)
fillet.Base = (boolean38, edges_at(boolean38, [
    (35.5, 62.001, 5),
    (73, 62.001, 5),
    (110.5, 62.001, 5),
    (35.5, 142.001, 5),
    (73, 142.001, 5),
    (110.5, 142.001, 5),
]))
fillet.Radius = 3
doc.recompute()

fillet2 = doc.addObject("PartDesign::Fillet", "Fillet001")
body39.addObject(fillet2)
fillet2.Base = (fillet, edges_at(fillet, [
    (10, 105, 5),
    (82.5, 205, 5),
    (82.5, 5, 5),
    (155, 105, 5),
    (155, 205, 30),
    (155, 5, 30),
]))
fillet2.Radius = 2
doc.recompute()

fillet3 = doc.addObject("PartDesign::Fillet", "Fillet002")
body39.addObject(fillet3)
fillet3.Base = (fillet2, edges_at(fillet2, [
    (81.5, 5, 55),
    (155, 105, 55),
    (80, 210, 55),
    (160, 105, 55),
    (80, 0, 55),
    (0, 210, 27.5),
    (0, 0, 27.5),
    (160, 210, 27.5),
    (160, 0, 27.5),
]))
fillet3.Radius = 2
doc.recompute()

fillet4 = doc.addObject("PartDesign::Fillet", "Fillet003")
body39.addObject(fillet4)
fillet4.Base = (fillet3, edges_at(fillet3, [
    (35.5, 95.355, 38.355),
    (73, 95.355, 38.355),
    (110.5, 95.355, 38.355),
    (35.5, 175.355, 38.355),
    (73, 175.355, 38.355),
    (110.5, 175.355, 38.355),
]))
fillet4.Radius = 2

doc.recompute()
